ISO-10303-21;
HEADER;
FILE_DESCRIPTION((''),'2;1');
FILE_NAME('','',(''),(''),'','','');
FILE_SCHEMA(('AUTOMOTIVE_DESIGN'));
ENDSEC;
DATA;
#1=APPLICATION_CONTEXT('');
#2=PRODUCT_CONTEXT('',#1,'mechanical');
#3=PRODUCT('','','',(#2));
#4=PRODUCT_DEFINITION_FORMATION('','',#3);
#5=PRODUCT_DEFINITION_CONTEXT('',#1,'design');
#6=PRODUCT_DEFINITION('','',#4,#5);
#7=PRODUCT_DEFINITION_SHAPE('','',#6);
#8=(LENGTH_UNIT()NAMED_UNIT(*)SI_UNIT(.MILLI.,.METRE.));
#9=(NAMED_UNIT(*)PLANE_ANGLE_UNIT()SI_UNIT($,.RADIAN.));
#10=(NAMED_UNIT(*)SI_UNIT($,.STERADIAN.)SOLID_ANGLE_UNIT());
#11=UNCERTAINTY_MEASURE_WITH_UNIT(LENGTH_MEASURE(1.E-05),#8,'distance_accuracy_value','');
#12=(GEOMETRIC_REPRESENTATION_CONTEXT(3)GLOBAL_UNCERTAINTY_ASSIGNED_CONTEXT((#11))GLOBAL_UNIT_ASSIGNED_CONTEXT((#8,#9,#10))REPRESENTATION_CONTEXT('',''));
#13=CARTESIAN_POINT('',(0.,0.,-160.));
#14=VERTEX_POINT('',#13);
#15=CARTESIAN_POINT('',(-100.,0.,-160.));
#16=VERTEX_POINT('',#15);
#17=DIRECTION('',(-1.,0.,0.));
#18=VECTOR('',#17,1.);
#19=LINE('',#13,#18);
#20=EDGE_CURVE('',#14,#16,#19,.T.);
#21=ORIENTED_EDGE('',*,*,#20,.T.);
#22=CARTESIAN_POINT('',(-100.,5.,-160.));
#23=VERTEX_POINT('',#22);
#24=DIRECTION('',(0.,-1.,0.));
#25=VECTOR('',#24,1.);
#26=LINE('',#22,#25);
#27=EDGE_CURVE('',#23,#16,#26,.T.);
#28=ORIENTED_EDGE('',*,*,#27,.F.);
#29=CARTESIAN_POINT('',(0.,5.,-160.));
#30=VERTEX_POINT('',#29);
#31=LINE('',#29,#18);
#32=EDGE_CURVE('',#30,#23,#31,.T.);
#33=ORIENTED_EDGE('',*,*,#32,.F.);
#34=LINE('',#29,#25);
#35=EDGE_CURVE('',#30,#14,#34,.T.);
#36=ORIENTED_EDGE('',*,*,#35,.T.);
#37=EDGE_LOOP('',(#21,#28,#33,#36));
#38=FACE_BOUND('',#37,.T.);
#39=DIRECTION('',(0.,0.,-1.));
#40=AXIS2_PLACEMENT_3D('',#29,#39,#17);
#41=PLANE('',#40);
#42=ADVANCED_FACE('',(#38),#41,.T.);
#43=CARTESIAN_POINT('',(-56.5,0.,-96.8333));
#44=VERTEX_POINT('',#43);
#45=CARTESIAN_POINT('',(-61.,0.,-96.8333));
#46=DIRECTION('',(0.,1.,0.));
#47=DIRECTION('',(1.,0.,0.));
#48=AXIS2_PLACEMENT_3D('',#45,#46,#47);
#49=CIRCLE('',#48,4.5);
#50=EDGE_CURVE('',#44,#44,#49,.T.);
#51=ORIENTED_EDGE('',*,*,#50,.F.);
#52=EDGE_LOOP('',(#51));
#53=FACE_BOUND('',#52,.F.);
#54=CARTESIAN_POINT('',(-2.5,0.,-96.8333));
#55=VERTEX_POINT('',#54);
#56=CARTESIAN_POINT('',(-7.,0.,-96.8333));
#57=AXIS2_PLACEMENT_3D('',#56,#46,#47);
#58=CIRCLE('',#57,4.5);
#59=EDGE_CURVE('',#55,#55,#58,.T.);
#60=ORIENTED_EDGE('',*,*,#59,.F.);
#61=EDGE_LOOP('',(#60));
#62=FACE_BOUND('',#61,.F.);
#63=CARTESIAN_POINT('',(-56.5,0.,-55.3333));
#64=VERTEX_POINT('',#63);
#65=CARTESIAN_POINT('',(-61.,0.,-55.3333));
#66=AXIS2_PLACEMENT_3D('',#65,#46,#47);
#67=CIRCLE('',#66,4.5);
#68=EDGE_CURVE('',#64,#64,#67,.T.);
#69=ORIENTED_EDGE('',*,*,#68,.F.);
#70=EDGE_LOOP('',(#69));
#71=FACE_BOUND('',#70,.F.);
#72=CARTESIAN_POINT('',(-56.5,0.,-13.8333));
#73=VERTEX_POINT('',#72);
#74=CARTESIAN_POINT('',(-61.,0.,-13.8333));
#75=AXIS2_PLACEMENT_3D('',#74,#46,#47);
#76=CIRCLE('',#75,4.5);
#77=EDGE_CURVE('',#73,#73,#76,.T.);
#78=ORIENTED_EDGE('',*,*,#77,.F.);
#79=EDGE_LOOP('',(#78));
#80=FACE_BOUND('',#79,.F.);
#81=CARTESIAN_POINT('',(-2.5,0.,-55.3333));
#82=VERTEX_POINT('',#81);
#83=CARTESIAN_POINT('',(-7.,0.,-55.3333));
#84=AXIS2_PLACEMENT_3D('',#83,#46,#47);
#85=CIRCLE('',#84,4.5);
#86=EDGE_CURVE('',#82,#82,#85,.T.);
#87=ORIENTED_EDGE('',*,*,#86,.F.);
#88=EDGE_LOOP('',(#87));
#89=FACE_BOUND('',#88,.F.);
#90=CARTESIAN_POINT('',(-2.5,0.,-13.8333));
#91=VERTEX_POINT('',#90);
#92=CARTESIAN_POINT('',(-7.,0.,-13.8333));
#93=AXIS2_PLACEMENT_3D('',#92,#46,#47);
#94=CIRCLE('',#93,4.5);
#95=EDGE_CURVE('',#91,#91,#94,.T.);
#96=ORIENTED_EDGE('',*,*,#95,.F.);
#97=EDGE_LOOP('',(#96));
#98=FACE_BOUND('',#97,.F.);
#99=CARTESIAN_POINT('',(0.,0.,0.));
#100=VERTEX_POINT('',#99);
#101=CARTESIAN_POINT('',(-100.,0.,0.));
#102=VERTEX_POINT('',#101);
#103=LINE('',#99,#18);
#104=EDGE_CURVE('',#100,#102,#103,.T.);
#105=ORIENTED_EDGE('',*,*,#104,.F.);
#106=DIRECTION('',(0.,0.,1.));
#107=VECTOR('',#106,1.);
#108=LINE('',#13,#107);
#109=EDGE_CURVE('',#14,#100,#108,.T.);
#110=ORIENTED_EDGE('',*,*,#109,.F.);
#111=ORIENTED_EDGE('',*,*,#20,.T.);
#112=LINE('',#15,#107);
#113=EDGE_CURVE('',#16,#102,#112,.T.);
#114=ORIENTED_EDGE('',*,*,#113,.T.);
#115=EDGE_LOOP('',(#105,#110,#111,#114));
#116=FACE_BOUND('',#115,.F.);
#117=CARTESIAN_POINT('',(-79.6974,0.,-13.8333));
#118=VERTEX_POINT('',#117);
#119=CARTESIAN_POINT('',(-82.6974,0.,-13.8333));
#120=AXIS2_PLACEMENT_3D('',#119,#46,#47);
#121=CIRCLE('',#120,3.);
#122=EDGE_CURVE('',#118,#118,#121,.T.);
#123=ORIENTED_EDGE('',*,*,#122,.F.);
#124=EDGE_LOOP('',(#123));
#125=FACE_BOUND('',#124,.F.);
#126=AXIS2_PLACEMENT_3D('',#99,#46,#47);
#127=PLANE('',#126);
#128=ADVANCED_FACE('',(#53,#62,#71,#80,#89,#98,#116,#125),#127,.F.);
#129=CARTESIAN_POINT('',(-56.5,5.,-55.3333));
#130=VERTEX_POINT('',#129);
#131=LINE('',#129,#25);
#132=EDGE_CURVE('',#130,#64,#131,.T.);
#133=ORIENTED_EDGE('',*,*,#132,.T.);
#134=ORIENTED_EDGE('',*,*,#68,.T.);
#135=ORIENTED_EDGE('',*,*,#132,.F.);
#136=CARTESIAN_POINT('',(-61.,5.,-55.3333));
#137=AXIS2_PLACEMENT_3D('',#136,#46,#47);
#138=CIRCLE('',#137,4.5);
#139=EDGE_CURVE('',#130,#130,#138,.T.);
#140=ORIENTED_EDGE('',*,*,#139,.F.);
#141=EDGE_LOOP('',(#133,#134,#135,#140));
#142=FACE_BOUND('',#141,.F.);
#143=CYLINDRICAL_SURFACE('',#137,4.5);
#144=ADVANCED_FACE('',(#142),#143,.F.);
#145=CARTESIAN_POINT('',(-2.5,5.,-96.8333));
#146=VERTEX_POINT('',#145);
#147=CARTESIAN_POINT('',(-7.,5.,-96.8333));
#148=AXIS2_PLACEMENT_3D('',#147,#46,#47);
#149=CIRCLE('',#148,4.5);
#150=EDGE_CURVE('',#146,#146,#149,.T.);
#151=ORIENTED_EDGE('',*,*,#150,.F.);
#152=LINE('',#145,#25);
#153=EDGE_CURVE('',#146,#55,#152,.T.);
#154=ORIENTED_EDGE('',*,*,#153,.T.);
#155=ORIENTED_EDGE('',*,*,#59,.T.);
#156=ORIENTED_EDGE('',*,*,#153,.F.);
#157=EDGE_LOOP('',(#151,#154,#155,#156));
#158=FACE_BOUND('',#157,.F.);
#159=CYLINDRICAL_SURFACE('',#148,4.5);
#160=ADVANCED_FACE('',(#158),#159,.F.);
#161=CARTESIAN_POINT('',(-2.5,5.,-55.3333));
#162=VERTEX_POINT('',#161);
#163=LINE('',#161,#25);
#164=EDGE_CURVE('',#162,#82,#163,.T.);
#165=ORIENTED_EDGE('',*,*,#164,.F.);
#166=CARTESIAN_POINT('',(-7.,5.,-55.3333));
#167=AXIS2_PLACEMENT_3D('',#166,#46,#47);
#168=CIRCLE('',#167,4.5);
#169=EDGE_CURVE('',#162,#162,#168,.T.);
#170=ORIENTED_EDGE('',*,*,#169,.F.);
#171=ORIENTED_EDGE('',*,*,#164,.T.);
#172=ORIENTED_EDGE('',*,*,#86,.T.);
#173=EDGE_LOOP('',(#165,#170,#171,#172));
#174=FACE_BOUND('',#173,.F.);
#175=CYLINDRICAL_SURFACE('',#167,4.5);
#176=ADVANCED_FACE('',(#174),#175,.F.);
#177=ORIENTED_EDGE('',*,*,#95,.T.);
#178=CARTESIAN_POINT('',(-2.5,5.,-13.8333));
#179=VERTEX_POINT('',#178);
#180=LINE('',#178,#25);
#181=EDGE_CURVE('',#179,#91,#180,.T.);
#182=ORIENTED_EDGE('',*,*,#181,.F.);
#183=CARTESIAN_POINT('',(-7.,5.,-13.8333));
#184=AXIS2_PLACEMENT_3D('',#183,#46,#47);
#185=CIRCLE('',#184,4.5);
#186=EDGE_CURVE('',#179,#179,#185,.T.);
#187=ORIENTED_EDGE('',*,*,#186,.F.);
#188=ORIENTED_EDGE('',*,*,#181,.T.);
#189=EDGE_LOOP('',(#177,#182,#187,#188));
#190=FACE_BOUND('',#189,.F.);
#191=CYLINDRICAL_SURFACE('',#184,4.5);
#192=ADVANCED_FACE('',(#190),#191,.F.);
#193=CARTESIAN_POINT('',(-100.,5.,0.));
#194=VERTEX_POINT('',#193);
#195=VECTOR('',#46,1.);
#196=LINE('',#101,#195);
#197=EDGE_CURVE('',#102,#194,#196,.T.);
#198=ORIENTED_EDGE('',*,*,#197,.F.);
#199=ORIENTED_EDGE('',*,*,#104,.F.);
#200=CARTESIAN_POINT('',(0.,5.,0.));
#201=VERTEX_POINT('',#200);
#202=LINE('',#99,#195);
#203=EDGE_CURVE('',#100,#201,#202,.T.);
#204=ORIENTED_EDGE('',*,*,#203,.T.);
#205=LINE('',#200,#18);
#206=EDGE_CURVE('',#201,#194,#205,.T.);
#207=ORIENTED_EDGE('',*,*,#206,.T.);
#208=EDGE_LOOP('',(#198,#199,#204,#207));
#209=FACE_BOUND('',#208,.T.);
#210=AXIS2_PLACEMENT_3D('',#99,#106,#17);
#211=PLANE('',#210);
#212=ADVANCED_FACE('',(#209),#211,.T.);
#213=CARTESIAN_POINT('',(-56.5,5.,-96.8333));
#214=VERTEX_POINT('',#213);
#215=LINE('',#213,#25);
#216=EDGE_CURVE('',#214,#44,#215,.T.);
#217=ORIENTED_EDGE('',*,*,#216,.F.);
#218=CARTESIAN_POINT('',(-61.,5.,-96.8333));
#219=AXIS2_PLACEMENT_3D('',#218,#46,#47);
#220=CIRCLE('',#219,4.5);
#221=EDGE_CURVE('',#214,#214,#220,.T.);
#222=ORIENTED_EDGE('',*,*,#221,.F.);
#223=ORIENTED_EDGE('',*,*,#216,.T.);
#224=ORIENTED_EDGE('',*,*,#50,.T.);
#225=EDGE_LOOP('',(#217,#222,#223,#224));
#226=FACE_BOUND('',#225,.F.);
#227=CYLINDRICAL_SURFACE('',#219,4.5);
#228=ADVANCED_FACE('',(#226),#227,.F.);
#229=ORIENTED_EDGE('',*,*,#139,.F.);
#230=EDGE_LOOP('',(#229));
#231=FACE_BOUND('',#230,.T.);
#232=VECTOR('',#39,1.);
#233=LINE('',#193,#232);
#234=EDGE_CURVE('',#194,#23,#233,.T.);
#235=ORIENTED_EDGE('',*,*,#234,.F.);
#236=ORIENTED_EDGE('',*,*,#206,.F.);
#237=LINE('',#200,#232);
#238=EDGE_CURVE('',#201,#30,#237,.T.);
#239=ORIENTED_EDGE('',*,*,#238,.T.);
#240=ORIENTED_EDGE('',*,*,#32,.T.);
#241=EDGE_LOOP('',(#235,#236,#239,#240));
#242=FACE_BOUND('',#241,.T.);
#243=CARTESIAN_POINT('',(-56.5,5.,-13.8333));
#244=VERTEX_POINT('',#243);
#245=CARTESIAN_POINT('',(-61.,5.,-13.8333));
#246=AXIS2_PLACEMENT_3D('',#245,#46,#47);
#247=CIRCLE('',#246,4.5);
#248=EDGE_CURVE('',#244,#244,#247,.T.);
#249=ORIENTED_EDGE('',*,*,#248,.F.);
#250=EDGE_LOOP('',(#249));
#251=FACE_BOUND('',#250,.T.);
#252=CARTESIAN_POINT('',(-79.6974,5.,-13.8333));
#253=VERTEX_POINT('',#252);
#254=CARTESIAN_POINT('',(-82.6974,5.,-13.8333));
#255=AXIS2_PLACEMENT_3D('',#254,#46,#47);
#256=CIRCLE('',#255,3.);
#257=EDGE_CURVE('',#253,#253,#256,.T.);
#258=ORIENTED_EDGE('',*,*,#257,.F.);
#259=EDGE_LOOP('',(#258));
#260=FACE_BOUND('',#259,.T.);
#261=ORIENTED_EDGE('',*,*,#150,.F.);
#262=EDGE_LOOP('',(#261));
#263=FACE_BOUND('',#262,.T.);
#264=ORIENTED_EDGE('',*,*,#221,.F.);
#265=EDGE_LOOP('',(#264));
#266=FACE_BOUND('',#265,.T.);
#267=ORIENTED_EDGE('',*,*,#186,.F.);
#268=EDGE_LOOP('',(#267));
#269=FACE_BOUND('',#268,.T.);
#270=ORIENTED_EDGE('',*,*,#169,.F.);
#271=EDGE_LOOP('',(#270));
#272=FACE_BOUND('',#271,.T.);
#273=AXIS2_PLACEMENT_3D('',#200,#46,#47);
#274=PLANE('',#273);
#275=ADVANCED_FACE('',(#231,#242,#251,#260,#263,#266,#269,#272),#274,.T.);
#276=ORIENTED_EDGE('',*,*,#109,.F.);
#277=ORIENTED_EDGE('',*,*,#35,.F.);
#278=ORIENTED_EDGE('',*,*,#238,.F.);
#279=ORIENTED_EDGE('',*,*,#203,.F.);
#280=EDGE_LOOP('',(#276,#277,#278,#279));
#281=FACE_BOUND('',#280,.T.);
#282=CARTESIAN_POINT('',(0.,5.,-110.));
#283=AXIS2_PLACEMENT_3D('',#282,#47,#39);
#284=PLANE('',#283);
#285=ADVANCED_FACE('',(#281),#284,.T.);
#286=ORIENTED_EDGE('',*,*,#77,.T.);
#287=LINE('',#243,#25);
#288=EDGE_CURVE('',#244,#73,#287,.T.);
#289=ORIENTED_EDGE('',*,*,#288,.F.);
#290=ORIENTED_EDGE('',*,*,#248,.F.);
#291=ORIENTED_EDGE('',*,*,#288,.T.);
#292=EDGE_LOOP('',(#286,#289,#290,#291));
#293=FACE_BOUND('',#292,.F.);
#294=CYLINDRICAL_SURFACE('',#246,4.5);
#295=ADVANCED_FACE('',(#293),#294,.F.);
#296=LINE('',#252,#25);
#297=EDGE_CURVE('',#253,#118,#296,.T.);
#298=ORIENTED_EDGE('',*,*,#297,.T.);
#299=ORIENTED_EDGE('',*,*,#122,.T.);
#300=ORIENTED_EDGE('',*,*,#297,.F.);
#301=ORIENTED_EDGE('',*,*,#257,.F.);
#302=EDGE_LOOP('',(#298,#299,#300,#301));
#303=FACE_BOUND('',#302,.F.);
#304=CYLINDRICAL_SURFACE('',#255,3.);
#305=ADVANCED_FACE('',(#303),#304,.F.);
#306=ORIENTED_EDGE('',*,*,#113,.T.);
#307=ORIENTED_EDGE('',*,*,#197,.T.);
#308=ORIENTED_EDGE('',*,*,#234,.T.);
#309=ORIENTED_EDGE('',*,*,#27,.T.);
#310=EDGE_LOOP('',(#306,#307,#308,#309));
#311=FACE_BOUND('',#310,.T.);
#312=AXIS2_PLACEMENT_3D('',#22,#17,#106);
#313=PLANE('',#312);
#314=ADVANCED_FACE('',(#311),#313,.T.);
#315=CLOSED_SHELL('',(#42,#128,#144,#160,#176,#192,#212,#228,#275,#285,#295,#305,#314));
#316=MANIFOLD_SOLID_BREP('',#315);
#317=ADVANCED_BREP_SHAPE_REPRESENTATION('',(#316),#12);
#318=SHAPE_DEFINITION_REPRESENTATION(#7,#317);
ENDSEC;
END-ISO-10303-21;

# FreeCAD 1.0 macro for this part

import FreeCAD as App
import Part
import Sketcher
from FreeCAD import Vector


def add_polygon(sketch, points):
    """Adds a closed chain of lines whose ends are joined by coincident constraints."""
    first, n = sketch.GeometryCount, len(points)
    for a, b in zip(points, points[1:] + points[:1]):
        sketch.addGeometry(Part.LineSegment(App.Vector(*a, 0), App.Vector(*b, 0)), False)
    for i in range(n):
        sketch.addConstraint(Sketcher.Constraint("Coincident", first + i, 2, first + (i + 1) % n, 1))

doc = App.newDocument("Part")
body = doc.addObject("PartDesign::Body", "Body")

sketch1 = body.newObject("Sketcher::SketchObject", "Sketch")
sketch1.AttachmentSupport = (doc.getObject("XZ_Plane"), [""])
sketch1.MapMode = "FlatFace"
add_polygon(sketch1, [(-100, 0), (0, 0), (0, -110), (-100, -110)])
sketch1.addConstraint([
    Sketcher.Constraint("Horizontal", 0),
    Sketcher.Constraint("Vertical", 1),
    Sketcher.Constraint("Horizontal", 2),
    Sketcher.Constraint("Vertical", 3),
    Sketcher.Constraint("Coincident", 0, 2, -1, 1),
    Sketcher.Constraint("DistanceX", 0, 1, 0, 2, 100.0),
    Sketcher.Constraint("DistanceY", 1, 2, 1, 1, 110.0),
])
pad1 = body.newObject("PartDesign::Pad", "Pad")
pad1.Profile = sketch1
pad1.Length = 5
pad1.Reversed = True

sketch2 = body.newObject("Sketcher::SketchObject", "Sketch001")
sketch2.AttachmentSupport = (doc.getObject("XZ_Plane"), [""])
sketch2.MapMode = "FlatFace"
sketch2.AttachmentOffset = App.Placement(Vector(0, 0, -5), App.Rotation())
sketch2.addGeometry([
    Part.Circle(Vector(-7, -13.8, 0), Vector(0, 0, 1), 4.5),
    Part.Circle(Vector(-7, -55.3, 0), Vector(0, 0, 1), 4.5),
    Part.Circle(Vector(-7, -96.8, 0), Vector(0, 0, 1), 4.5),
    Part.Circle(Vector(-61, -13.8, 0), Vector(0, 0, 1), 4.5),
    Part.Circle(Vector(-61, -55.3, 0), Vector(0, 0, 1), 4.5),
    Part.Circle(Vector(-61, -96.8, 0), Vector(0, 0, 1), 4.5),
    Part.Circle(Vector(-82.7, -13.8, 0), Vector(0, 0, 1), 3),
], False)
sketch2.addConstraint([
    Sketcher.Constraint("Equal", 0, 1),
    Sketcher.Constraint("Equal", 1, 2),
    Sketcher.Constraint("Equal", 2, 3),
    Sketcher.Constraint("Equal", 3, 4),
    Sketcher.Constraint("Equal", 4, 5),
    Sketcher.Constraint("Horizontal", 0, 3, 3, 3),
    Sketcher.Constraint("Horizontal", 1, 3, 4, 3),
    Sketcher.Constraint("Horizontal", 2, 3, 5, 3),
    Sketcher.Constraint("Horizontal", 3, 3, 6, 3),
    Sketcher.Constraint("Vertical", 0, 3, 1, 3),
    Sketcher.Constraint("Vertical", 1, 3, 2, 3),
    Sketcher.Constraint("Vertical", 3, 3, 4, 3),
    Sketcher.Constraint("Vertical", 4, 3, 5, 3),
    Sketcher.Constraint("Diameter", 0, 9.0),
    Sketcher.Constraint("Diameter", 6, 6.0),
    Sketcher.Constraint("DistanceX", 0, 3, -1, 1, 7.0),
    Sketcher.Constraint("DistanceY", 1, 3, 0, 3, 41.5),
    Sketcher.Constraint("DistanceY", 2, 3, 1, 3, 41.5),
    Sketcher.Constraint("DistanceX", 3, 3, -1, 1, 61.0),
    Sketcher.Constraint("DistanceY", 0, 3, -1, 1, 13.8333),
    Sketcher.Constraint("DistanceX", 6, 3, -1, 1, 82.6974),
])
pocket1 = body.newObject("PartDesign::Pocket", "Pocket")
pocket1.Profile = sketch2
pocket1.Length = 10
pocket1.Reversed = True

sketch3 = body.newObject("Sketcher::SketchObject", "Sketch002")
sketch3.AttachmentSupport = (doc.getObject("XZ_Plane"), [""])
sketch3.MapMode = "FlatFace"
sketch3.AttachmentOffset = App.Placement(Vector(0, 0, -5), App.Rotation())
add_polygon(sketch3, [(-100, -160), (-100, -110), (0, -110), (0, -160)])
sketch3.addConstraint([
    Sketcher.Constraint("Vertical", 0),
    Sketcher.Constraint("Horizontal", 1),
    Sketcher.Constraint("Vertical", 2),
    Sketcher.Constraint("Horizontal", 3),
    Sketcher.Constraint("PointOnObject", 1, 2, -2),
    Sketcher.Constraint("DistanceY", 0, 1, 0, 2, 50.0),
    Sketcher.Constraint("DistanceX", 1, 1, 1, 2, 100.0),
    Sketcher.Constraint("DistanceY", 0, 2, -1, 1, 110.0),
])
pad2 = body.newObject("PartDesign::Pad", "Pad001")
pad2.Profile = sketch3
pad2.Length = 5

doc.recompute()
